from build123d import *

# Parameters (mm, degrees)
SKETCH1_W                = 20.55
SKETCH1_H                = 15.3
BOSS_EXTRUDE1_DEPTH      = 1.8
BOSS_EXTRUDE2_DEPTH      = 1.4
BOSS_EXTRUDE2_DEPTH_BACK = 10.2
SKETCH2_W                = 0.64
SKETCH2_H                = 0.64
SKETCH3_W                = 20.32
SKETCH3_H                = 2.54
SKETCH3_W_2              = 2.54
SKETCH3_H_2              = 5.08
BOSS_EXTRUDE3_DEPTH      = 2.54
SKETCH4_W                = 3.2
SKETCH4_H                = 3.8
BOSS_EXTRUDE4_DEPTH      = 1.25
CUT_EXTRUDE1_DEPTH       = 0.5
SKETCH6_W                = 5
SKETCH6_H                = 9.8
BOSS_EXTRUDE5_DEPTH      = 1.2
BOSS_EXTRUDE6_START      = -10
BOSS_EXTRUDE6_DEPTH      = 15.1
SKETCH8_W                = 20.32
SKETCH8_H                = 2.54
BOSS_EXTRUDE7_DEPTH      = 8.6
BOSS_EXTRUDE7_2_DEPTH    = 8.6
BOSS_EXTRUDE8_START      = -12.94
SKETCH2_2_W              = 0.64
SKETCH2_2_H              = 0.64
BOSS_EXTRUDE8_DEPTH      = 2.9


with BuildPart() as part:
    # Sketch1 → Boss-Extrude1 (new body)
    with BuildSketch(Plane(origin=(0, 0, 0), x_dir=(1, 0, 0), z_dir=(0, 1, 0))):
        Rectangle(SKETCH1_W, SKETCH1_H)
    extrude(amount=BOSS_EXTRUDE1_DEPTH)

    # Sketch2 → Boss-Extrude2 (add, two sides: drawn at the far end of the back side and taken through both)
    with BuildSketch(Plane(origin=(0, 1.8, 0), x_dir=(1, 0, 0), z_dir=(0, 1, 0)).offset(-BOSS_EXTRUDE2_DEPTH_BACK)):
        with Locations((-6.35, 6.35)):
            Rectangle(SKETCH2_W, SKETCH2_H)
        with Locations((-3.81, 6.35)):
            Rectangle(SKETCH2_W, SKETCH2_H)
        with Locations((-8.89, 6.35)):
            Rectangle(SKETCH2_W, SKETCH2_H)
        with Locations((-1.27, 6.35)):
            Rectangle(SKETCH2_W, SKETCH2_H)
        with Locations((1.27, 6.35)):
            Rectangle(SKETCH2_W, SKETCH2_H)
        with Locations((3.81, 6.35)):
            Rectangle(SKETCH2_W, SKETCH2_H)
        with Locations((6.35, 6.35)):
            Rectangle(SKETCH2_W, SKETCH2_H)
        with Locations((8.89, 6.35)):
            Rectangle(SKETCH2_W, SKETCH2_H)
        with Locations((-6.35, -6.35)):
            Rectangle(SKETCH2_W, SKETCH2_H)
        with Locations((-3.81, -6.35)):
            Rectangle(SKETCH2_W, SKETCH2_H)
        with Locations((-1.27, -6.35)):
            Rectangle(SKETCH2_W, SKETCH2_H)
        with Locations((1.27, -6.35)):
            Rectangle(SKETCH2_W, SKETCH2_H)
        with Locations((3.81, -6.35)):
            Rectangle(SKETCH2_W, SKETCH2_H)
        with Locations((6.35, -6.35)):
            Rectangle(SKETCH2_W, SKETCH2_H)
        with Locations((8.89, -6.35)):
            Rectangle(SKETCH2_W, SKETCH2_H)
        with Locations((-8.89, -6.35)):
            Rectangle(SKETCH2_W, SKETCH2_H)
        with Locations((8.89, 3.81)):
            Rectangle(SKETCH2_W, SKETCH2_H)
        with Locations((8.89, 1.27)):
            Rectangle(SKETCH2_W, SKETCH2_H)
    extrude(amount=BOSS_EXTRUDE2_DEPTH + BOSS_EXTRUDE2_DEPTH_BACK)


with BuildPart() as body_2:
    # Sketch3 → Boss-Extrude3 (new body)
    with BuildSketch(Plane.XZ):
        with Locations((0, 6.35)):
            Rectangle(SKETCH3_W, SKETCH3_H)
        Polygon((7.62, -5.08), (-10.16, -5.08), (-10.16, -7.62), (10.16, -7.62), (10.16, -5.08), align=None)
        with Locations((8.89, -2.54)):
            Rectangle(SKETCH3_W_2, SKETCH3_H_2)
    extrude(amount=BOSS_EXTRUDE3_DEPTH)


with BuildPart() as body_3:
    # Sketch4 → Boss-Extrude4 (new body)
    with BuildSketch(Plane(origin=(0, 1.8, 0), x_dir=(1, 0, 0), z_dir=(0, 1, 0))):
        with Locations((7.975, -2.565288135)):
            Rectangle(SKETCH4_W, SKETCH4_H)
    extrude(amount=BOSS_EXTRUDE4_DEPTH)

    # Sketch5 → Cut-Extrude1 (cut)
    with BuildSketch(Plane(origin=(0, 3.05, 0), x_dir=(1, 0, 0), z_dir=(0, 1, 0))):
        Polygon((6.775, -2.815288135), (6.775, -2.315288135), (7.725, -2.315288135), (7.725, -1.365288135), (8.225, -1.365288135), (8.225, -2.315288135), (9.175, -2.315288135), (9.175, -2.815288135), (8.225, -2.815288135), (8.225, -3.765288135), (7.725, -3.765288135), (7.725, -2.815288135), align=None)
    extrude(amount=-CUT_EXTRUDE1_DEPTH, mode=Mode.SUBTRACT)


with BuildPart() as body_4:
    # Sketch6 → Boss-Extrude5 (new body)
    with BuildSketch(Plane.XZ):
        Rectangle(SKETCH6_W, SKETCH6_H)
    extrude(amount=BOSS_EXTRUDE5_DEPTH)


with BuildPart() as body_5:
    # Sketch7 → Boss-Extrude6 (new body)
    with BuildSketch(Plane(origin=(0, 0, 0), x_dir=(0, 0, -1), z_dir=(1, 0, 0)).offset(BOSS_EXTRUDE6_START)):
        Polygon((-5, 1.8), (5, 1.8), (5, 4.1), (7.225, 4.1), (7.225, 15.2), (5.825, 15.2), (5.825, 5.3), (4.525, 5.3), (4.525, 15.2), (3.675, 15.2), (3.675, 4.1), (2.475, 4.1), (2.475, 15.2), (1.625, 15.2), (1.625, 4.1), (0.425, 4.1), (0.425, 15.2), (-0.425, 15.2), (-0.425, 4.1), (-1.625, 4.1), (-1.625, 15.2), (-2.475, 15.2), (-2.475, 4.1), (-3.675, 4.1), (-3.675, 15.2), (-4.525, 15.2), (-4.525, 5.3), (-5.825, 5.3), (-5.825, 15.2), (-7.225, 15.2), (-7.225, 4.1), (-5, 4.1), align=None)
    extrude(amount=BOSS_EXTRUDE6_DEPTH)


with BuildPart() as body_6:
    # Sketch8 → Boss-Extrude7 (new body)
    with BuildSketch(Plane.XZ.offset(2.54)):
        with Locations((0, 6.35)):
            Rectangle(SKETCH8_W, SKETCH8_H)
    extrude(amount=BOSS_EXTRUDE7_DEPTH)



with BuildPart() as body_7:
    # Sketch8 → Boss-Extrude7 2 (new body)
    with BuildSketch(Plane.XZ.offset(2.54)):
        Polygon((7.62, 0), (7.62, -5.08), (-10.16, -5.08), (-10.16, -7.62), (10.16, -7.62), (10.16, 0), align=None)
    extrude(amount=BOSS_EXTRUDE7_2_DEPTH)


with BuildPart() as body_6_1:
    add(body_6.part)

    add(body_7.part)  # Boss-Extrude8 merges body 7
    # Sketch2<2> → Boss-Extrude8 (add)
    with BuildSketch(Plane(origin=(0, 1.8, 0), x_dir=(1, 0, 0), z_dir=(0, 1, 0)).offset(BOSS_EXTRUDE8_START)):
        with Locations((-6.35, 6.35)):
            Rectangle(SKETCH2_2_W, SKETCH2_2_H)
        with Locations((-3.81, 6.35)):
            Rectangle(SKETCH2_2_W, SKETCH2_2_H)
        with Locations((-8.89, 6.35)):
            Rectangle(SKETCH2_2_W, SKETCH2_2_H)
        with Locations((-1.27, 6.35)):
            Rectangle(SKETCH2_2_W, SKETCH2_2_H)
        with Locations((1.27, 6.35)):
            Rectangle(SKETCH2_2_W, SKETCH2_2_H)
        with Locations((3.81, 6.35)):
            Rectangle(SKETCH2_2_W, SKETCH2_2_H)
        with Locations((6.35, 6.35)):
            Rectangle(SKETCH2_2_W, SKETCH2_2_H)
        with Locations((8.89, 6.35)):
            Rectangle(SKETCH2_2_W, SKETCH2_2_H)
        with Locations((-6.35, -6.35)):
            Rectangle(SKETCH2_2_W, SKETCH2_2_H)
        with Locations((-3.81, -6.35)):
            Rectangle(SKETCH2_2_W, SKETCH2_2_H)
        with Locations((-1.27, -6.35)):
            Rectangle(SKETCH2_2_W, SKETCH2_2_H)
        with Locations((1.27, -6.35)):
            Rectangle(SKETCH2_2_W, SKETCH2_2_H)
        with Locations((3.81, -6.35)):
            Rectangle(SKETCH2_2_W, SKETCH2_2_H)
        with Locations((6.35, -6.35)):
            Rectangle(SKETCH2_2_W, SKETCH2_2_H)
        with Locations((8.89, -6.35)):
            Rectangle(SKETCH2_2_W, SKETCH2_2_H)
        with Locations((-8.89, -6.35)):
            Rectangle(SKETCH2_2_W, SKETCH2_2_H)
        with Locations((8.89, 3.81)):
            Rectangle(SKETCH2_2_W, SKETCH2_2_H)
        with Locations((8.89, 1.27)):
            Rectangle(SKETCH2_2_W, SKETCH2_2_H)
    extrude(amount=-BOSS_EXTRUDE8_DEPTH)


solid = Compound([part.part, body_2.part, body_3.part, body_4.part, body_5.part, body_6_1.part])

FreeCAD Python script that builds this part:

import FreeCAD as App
import Part
import Sketcher

V = App.Vector
Q = App.Units.Quantity


def add_polygon(sketch, points):
    """Adds a closed chain of lines whose ends are joined by coincident constraints."""
    first, n = sketch.GeometryCount, len(points)
    for a, b in zip(points, points[1:] + points[:1]):
        sketch.addGeometry(Part.LineSegment(App.Vector(*a, 0), App.Vector(*b, 0)), False)
    for i in range(n):
        sketch.addConstraint(Sketcher.Constraint("Coincident", first + i, 2, first + (i + 1) % n, 1))

doc = App.newDocument("Part")
body = doc.addObject("PartDesign::Body", "Body")

sketch1 = body.newObject("Sketcher::SketchObject", "Sketch")
sketch1.AttachmentSupport = (doc.getObject("XZ_Plane"), [""])
sketch1.MapMode = "FlatFace"
add_polygon(sketch1, [(-10, -8), (-10, 8), (10, 8), (10, -8)])
sketch1.addConstraint(Sketcher.Constraint("Vertical", 0))
sketch1.addConstraint(Sketcher.Constraint("Horizontal", 1))
sketch1.addConstraint(Sketcher.Constraint("Vertical", 2))
sketch1.addConstraint(Sketcher.Constraint("Horizontal", 3))
sketch1.addConstraint(Sketcher.Constraint("Symmetric", 0, 2, 2, 2, -1, 1))
sketch1.addConstraint(Sketcher.Constraint("DistanceY", 0, 1, 0, 2, Q("15.3 mm")))
sketch1.addConstraint(Sketcher.Constraint("DistanceX", 1, 1, 1, 2, Q("20.55 mm")))
pad1 = body.newObject("PartDesign::Pad", "Pad")
pad1.Profile = sketch1
pad1.Length = 1.8
pad1.Reversed = True

sketch2 = body.newObject("Sketcher::SketchObject", "Sketch001")
sketch2.AttachmentSupport = (doc.getObject("XZ_Plane"), [""])
sketch2.MapMode = "FlatFace"
sketch2.AttachmentOffset = App.Placement(V(0, 0, -1.8), App.Rotation())
add_polygon(sketch2, [(-6.7, -6.7), (-6.7, -6), (-6, -6), (-6, -6.7)])
add_polygon(sketch2, [(-4.1, -6.7), (-4.1, -6), (-3.5, -6), (-3.5, -6.7)])
add_polygon(sketch2, [(-9.2, -6.7), (-9.2, -6), (-8.6, -6), (-8.6, -6.7)])
add_polygon(sketch2, [(-1.6, -6.7), (-1.6, -6), (-0.9, -6), (-0.9, -6.7)])
add_polygon(sketch2, [(0.9, -6.7), (0.9, -6), (1.6, -6), (1.6, -6.7)])
add_polygon(sketch2, [(3.5, -6.7), (3.5, -6), (4.1, -6), (4.1, -6.7)])
add_polygon(sketch2, [(6, -6.7), (6, -6), (6.7, -6), (6.7, -6.7)])
add_polygon(sketch2, [(8.6, -6.7), (8.6, -6), (9.2, -6), (9.2, -6.7)])
add_polygon(sketch2, [(-6.7, 6), (-6.7, 6.7), (-6, 6.7), (-6, 6)])
add_polygon(sketch2, [(-4.1, 6), (-4.1, 6.7), (-3.5, 6.7), (-3.5, 6)])
add_polygon(sketch2, [(-1.6, 6), (-1.6, 6.7), (-0.9, 6.7), (-0.9, 6)])
add_polygon(sketch2, [(0.9, 6), (0.9, 6.7), (1.6, 6.7), (1.6, 6)])
add_polygon(sketch2, [(3.5, 6), (3.5, 6.7), (4.1, 6.7), (4.1, 6)])
add_polygon(sketch2, [(6, 6), (6, 6.7), (6.7, 6.7), (6.7, 6)])
add_polygon(sketch2, [(8.6, 6), (8.6, 6.7), (9.2, 6.7), (9.2, 6)])
add_polygon(sketch2, [(-9.2, 6), (-9.2, 6.7), (-8.6, 6.7), (-8.6, 6)])
add_polygon(sketch2, [(8.6, -4.1), (8.6, -3.5), (9.2, -3.5), (9.2, -4.1)])
add_polygon(sketch2, [(8.6, -1.6), (8.6, -0.9), (9.2, -0.9), (9.2, -1.6)])
sketch2.addConstraint(Sketcher.Constraint("Vertical", 0))
sketch2.addConstraint(Sketcher.Constraint("Horizontal", 1))
sketch2.addConstraint(Sketcher.Constraint("Vertical", 2))
sketch2.addConstraint(Sketcher.Constraint("Horizontal", 3))
sketch2.addConstraint(Sketcher.Constraint("Vertical", 4))
sketch2.addConstraint(Sketcher.Constraint("Horizontal", 5))
sketch2.addConstraint(Sketcher.Constraint("Vertical", 6))
sketch2.addConstraint(Sketcher.Constraint("Horizontal", 7))
sketch2.addConstraint(Sketcher.Constraint("Vertical", 8))
sketch2.addConstraint(Sketcher.Constraint("Horizontal", 9))
sketch2.addConstraint(Sketcher.Constraint("Vertical", 10))
sketch2.addConstraint(Sketcher.Constraint("Horizontal", 11))
sketch2.addConstraint(Sketcher.Constraint("Vertical", 12))
sketch2.addConstraint(Sketcher.Constraint("Horizontal", 13))
sketch2.addConstraint(Sketcher.Constraint("Vertical", 14))
sketch2.addConstraint(Sketcher.Constraint("Horizontal", 15))
sketch2.addConstraint(Sketcher.Constraint("Vertical", 16))
sketch2.addConstraint(Sketcher.Constraint("Horizontal", 17))
sketch2.addConstraint(Sketcher.Constraint("Vertical", 18))
sketch2.addConstraint(Sketcher.Constraint("Horizontal", 19))
sketch2.addConstraint(Sketcher.Constraint("Vertical", 20))
sketch2.addConstraint(Sketcher.Constraint("Horizontal", 21))
sketch2.addConstraint(Sketcher.Constraint("Vertical", 22))
sketch2.addConstraint(Sketcher.Constraint("Horizontal", 23))
sketch2.addConstraint(Sketcher.Constraint("Vertical", 24))
sketch2.addConstraint(Sketcher.Constraint("Horizontal", 25))
sketch2.addConstraint(Sketcher.Constraint("Vertical", 26))
sketch2.addConstraint(Sketcher.Constraint("Horizontal", 27))
sketch2.addConstraint(Sketcher.Constraint("Vertical", 28))
sketch2.addConstraint(Sketcher.Constraint("Horizontal", 29))
sketch2.addConstraint(Sketcher.Constraint("Vertical", 30))
sketch2.addConstraint(Sketcher.Constraint("Horizontal", 31))
sketch2.addConstraint(Sketcher.Constraint("Vertical", 32))
sketch2.addConstraint(Sketcher.Constraint("Horizontal", 33))
sketch2.addConstraint(Sketcher.Constraint("Vertical", 34))
sketch2.addConstraint(Sketcher.Constraint("Horizontal", 35))
sketch2.addConstraint(Sketcher.Constraint("Vertical", 36))
sketch2.addConstraint(Sketcher.Constraint("Horizontal", 37))
sketch2.addConstraint(Sketcher.Constraint("Vertical", 38))
sketch2.addConstraint(Sketcher.Constraint("Horizontal", 39))
sketch2.addConstraint(Sketcher.Constraint("Vertical", 40))
sketch2.addConstraint(Sketcher.Constraint("Horizontal", 41))
sketch2.addConstraint(Sketcher.Constraint("Vertical", 42))
sketch2.addConstraint(Sketcher.Constraint("Horizontal", 43))
sketch2.addConstraint(Sketcher.Constraint("Vertical", 44))
sketch2.addConstraint(Sketcher.Constraint("Horizontal", 45))
sketch2.addConstraint(Sketcher.Constraint("Vertical", 46))
sketch2.addConstraint(Sketcher.Constraint("Horizontal", 47))
sketch2.addConstraint(Sketcher.Constraint("Vertical", 48))
sketch2.addConstraint(Sketcher.Constraint("Horizontal", 49))
sketch2.addConstraint(Sketcher.Constraint("Vertical", 50))
sketch2.addConstraint(Sketcher.Constraint("Horizontal", 51))
sketch2.addConstraint(Sketcher.Constraint("Vertical", 52))
sketch2.addConstraint(Sketcher.Constraint("Horizontal", 53))
sketch2.addConstraint(Sketcher.Constraint("Vertical", 54))
sketch2.addConstraint(Sketcher.Constraint("Horizontal", 55))
sketch2.addConstraint(Sketcher.Constraint("Vertical", 56))
sketch2.addConstraint(Sketcher.Constraint("Horizontal", 57))
sketch2.addConstraint(Sketcher.Constraint("Vertical", 58))
sketch2.addConstraint(Sketcher.Constraint("Horizontal", 59))
sketch2.addConstraint(Sketcher.Constraint("Vertical", 60))
sketch2.addConstraint(Sketcher.Constraint("Horizontal", 61))
sketch2.addConstraint(Sketcher.Constraint("Vertical", 62))
sketch2.addConstraint(Sketcher.Constraint("Horizontal", 63))
sketch2.addConstraint(Sketcher.Constraint("Vertical", 64))
sketch2.addConstraint(Sketcher.Constraint("Horizontal", 65))
sketch2.addConstraint(Sketcher.Constraint("Vertical", 66))
sketch2.addConstraint(Sketcher.Constraint("Horizontal", 67))
sketch2.addConstraint(Sketcher.Constraint("Vertical", 68))
sketch2.addConstraint(Sketcher.Constraint("Horizontal", 69))
sketch2.addConstraint(Sketcher.Constraint("Vertical", 70))
sketch2.addConstraint(Sketcher.Constraint("Horizontal", 71))
sketch2.addConstraint(Sketcher.Constraint("Symmetric", 26, 2, 32, 2, -1, 1))
sketch2.addConstraint(Sketcher.Constraint("Symmetric", 24, 2, 34, 2, -1, 1))
sketch2.addConstraint(Sketcher.Constraint("Symmetric", 22, 2, 36, 2, -1, 1))
sketch2.addConstraint(Sketcher.Constraint("Symmetric", 20, 2, 38, 2, -1, 1))
sketch2.addConstraint(Sketcher.Constraint("Symmetric", 18, 2, 40, 2, -1, 1))
sketch2.addConstraint(Sketcher.Constraint("Symmetric", 16, 2, 42, 2, -1, 1))
sketch2.addConstraint(Sketcher.Constraint("Symmetric", 14, 2, 44, 2, -1, 1))
sketch2.addConstraint(Sketcher.Constraint("Symmetric", 12, 2, 46, 2, -1, 1))
sketch2.addConstraint(Sketcher.Constraint("Symmetric", 6, 2, 48, 2, -1, 1))
sketch2.addConstraint(Sketcher.Constraint("Symmetric", 4, 2, 50, 2, -1, 1))
sketch2.addConstraint(Sketcher.Constraint("Symmetric", 2, 2, 52, 2, -1, 1))
sketch2.addConstraint(Sketcher.Constraint("Symmetric", 0, 2, 54, 2, -1, 1))
sketch2.addConstraint(Sketcher.Constraint("Symmetric", 10, 2, 56, 2, -1, 1))
sketch2.addConstraint(Sketcher.Constraint("Symmetric", 8, 2, 58, 2, -1, 1))
sketch2.addConstraint(Sketcher.Constraint("Symmetric", 30, 2, 60, 2, -1, 1))
sketch2.addConstraint(Sketcher.Constraint("Symmetric", 28, 2, 62, 2, -1, 1))
sketch2.addConstraint(Sketcher.Constraint("Symmetric", 13, 2, 16, 2, -2))
sketch2.addConstraint(Sketcher.Constraint("Symmetric", 15, 2, 18, 2, -2))
sketch2.addConstraint(Sketcher.Constraint("Symmetric", 5, 2, 20, 2, -2))
sketch2.addConstraint(Sketcher.Constraint("Symmetric", 7, 2, 22, 2, -2))
sketch2.addConstraint(Sketcher.Constraint("Symmetric", 1, 2, 24, 2, -2))
sketch2.addConstraint(Sketcher.Constraint("Symmetric", 3, 2, 26, 2, -2))
sketch2.addConstraint(Sketcher.Constraint("Symmetric", 9, 2, 28, 2, -2))
sketch2.addConstraint(Sketcher.Constraint("Symmetric", 11, 2, 30, 2, -2))
sketch2.addConstraint(Sketcher.Constraint("Horizontal", 1, 2, 4, 2))
sketch2.addConstraint(Sketcher.Constraint("Horizontal", 3, 2, 6, 2))
sketch2.addConstraint(Sketcher.Constraint("Horizontal", 5, 2, 8, 2))
sketch2.addConstraint(Sketcher.Constraint("Horizontal", 7, 2, 10, 2))
sketch2.addConstraint(Sketcher.Constraint("Horizontal", 9, 2, 12, 2))
sketch2.addConstraint(Sketcher.Constraint("Horizontal", 11, 2, 14, 2))
sketch2.addConstraint(Sketcher.Constraint("Vertical", 59, 2, 64, 2))
sketch2.addConstraint(Sketcher.Constraint("Vertical", 58, 2, 65, 2))
sketch2.addConstraint(Sketcher.Constraint("Vertical", 67, 2, 68, 2))
sketch2.addConstraint(Sketcher.Constraint("Vertical", 66, 2, 69, 2))
sketch2.addConstraint(Sketcher.Constraint("Equal", 3, 5))
sketch2.addConstraint(Sketcher.Constraint("Equal", 7, 9))
sketch2.addConstraint(Sketcher.Constraint("Equal", 11, 13))
sketch2.addConstraint(Sketcher.Constraint("Equal", 71, 0))
sketch2.addConstraint(Sketcher.Constraint("Equal", 62, 64))
sketch2.addConstraint(Sketcher.Constraint("Equal", 66, 68))
sketch2.addConstraint(Sketcher.Constraint("DistanceX", 1, 1, 1, 2, Q("0.64 mm")))
sketch2.addConstraint(Sketcher.Constraint("DistanceX", 0, 2, -1, 1, Q("6.67 mm")))
sketch2.addConstraint(Sketcher.Constraint("DistanceY", 0, 2, -1, 1, Q("6.03 mm")))
sketch2.addConstraint(Sketcher.Constraint("DistanceX", 4, 2, -1, 1, Q("4.13 mm")))
sketch2.addConstraint(Sketcher.Constraint("DistanceX", 8, 2, -1, 1, Q("9.21 mm")))
sketch2.addConstraint(Sketcher.Constraint("DistanceX", 12, 2, -1, 1, Q("1.59 mm")))
sketch2.addConstraint(Sketcher.Constraint("DistanceY", 64, 2, -1, 1, Q("3.49 mm")))
sketch2.addConstraint(Sketcher.Constraint("DistanceY", 68, 2, -1, 1, Q("0.95 mm")))
pad2 = body.newObject("PartDesign::Pad", "Pad001")
pad2.Profile = sketch2
pad2.Type = "TwoLengths"
pad2.Length = 1.4
pad2.Length2 = 10.2
pad2.Reversed = True
body2 = doc.addObject("PartDesign::Body", "Body001")
body2.AllowCompound = True

sketch3 = body2.newObject("Sketcher::SketchObject", "Sketch002")
sketch3.AttachmentSupport = (doc.getObject("XZ_Plane001"), [""])
sketch3.MapMode = "FlatFace"
add_polygon(sketch3, [(-10.2, 7.6), (-10.2, 5.1), (10.2, 5.1), (10.2, 7.6)])
add_polygon(sketch3, [(-10.2, -5.1), (-10.2, -7.6), (10.2, -7.6), (10.2, 0), (7.6, 0), (7.6, -5.1)])
sketch3.addConstraint(Sketcher.Constraint("Vertical", 0))
sketch3.addConstraint(Sketcher.Constraint("Horizontal", 1))
sketch3.addConstraint(Sketcher.Constraint("Vertical", 2))
sketch3.addConstraint(Sketcher.Constraint("Horizontal", 3))
sketch3.addConstraint(Sketcher.Constraint("Vertical", 4))
sketch3.addConstraint(Sketcher.Constraint("Horizontal", 5))
sketch3.addConstraint(Sketcher.Constraint("Vertical", 6))
sketch3.addConstraint(Sketcher.Constraint("Horizontal", 7))
sketch3.addConstraint(Sketcher.Constraint("Vertical", 8))
sketch3.addConstraint(Sketcher.Constraint("Horizontal", 9))
sketch3.addConstraint(Sketcher.Constraint("Symmetric", 2, 2, 4, 2, -1, 1))
sketch3.addConstraint(Sketcher.Constraint("Symmetric", 0, 2, 9, 2, -1))
sketch3.addConstraint(Sketcher.Constraint("PointOnObject", 6, 2, -1))
sketch3.addConstraint(Sketcher.Constraint("Vertical", 2, 2, 5, 2))
sketch3.addConstraint(Sketcher.Constraint("Equal", 7, 0))
sketch3.addConstraint(Sketcher.Constraint("DistanceX", 1, 1, 1, 2, Q("20.32 mm")))
sketch3.addConstraint(Sketcher.Constraint("DistanceX", 7, 2, 7, 1, Q("2.54 mm")))
sketch3.addConstraint(Sketcher.Constraint("DistanceY", 6, 1, 6, 2, Q("7.62 mm")))
pad3 = body2.newObject("PartDesign::Pad", "Pad002")
pad3.Profile = sketch3
pad3.Length = 2.54
body3 = doc.addObject("PartDesign::Body", "Body002")

sketch4 = body3.newObject("Sketcher::SketchObject", "Sketch003")
sketch4.AttachmentSupport = (doc.getObject("XZ_Plane002"), [""])
sketch4.MapMode = "FlatFace"
sketch4.AttachmentOffset = App.Placement(V(0, 0, -1.8), App.Rotation())
add_polygon(sketch4, [(6.4, 0.7), (6.4, 4.5), (9.6, 4.5), (9.6, 0.7)])
sketch4.addConstraint(Sketcher.Constraint("Vertical", 0))
sketch4.addConstraint(Sketcher.Constraint("Horizontal", 1))
sketch4.addConstraint(Sketcher.Constraint("Vertical", 2))
sketch4.addConstraint(Sketcher.Constraint("Horizontal", 3))
sketch4.addConstraint(Sketcher.Constraint("DistanceX", 1, 1, 1, 2, Q("3.2 mm")))
sketch4.addConstraint(Sketcher.Constraint("DistanceY", 0, 1, 0, 2, Q("3.8 mm")))
sketch4.addConstraint(Sketcher.Constraint("DistanceX", -1, 1, 0, 2, Q("6.375 mm")))
sketch4.addConstraint(Sketcher.Constraint("DistanceY", -1, 1, 0, 2, Q("4.465288 mm")))
pad4 = body3.newObject("PartDesign::Pad", "Pad003")
pad4.Profile = sketch4
pad4.Length = 1.25
pad4.Reversed = True

sketch5 = body3.newObject("Sketcher::SketchObject", "Sketch004")
sketch5.AttachmentSupport = (doc.getObject("XZ_Plane002"), [""])
sketch5.MapMode = "FlatFace"
sketch5.AttachmentOffset = App.Placement(V(0, 0, -3.05), App.Rotation())
add_polygon(sketch5, [(6.8, 2.3), (6.8, 2.8), (7.7, 2.8), (7.7, 3.8), (8.2, 3.8), (8.2, 2.8), (9.2, 2.8), (9.2, 2.3), (8.2, 2.3), (8.2, 1.4), (7.7, 1.4), (7.7, 2.3)])
sketch5.addConstraint(Sketcher.Constraint("Vertical", 0))
sketch5.addConstraint(Sketcher.Constraint("Horizontal", 1))
sketch5.addConstraint(Sketcher.Constraint("Vertical", 2))
sketch5.addConstraint(Sketcher.Constraint("Horizontal", 3))
sketch5.addConstraint(Sketcher.Constraint("Vertical", 4))
sketch5.addConstraint(Sketcher.Constraint("Horizontal", 5))
sketch5.addConstraint(Sketcher.Constraint("Vertical", 6))
sketch5.addConstraint(Sketcher.Constraint("Horizontal", 7))
sketch5.addConstraint(Sketcher.Constraint("Vertical", 8))
sketch5.addConstraint(Sketcher.Constraint("Horizontal", 9))
sketch5.addConstraint(Sketcher.Constraint("Vertical", 10))
sketch5.addConstraint(Sketcher.Constraint("Horizontal", 11))
sketch5.addConstraint(Sketcher.Constraint("Horizontal", 1, 2, 4, 2))
sketch5.addConstraint(Sketcher.Constraint("Horizontal", 7, 2, 10, 2))
sketch5.addConstraint(Sketcher.Constraint("Vertical", 4, 2, 7, 2))
sketch5.addConstraint(Sketcher.Constraint("Vertical", 2, 2, 9, 2))
sketch5.addConstraint(Sketcher.Constraint("Equal", 1, 5))
sketch5.addConstraint(Sketcher.Constraint("Equal", 9, 0))
sketch5.addConstraint(Sketcher.Constraint("Equal", 11, 2))
sketch5.addConstraint(Sketcher.Constraint("Equal", 4, 8))
sketch5.addConstraint(Sketcher.Constraint("DistanceX", 3, 1, 3, 2, Q("0.5 mm")))
sketch5.addConstraint(Sketcher.Constraint("DistanceX", 1, 1, 1, 2, Q("0.95 mm")))
sketch5.addConstraint(Sketcher.Constraint("DistanceX", -1, 1, 0, 2, Q("6.775 mm")))
sketch5.addConstraint(Sketcher.Constraint("DistanceY", -1, 1, 0, 2, Q("2.815288 mm")))
pocket1 = body3.newObject("PartDesign::Pocket", "Pocket")
pocket1.Profile = sketch5
pocket1.Length = 0.5
pocket1.Reversed = True
body4 = doc.addObject("PartDesign::Body", "Body003")

sketch6 = body4.newObject("Sketcher::SketchObject", "Sketch005")
sketch6.AttachmentSupport = (doc.getObject("XZ_Plane003"), [""])
sketch6.MapMode = "FlatFace"
add_polygon(sketch6, [(-2, 5), (-2, -5), (2, -5), (2, 5)])
sketch6.addConstraint(Sketcher.Constraint("Vertical", 0))
sketch6.addConstraint(Sketcher.Constraint("Horizontal", 1))
sketch6.addConstraint(Sketcher.Constraint("Vertical", 2))
sketch6.addConstraint(Sketcher.Constraint("Horizontal", 3))
sketch6.addConstraint(Sketcher.Constraint("Symmetric", 0, 2, 2, 2, -1, 1))
sketch6.addConstraint(Sketcher.Constraint("DistanceX", 1, 1, 1, 2, Q("5 mm")))
sketch6.addConstraint(Sketcher.Constraint("DistanceY", 0, 2, 0, 1, Q("9.8 mm")))
pad5 = body4.newObject("PartDesign::Pad", "Pad004")
pad5.Profile = sketch6
pad5.Length = 1.2
body5 = doc.addObject("PartDesign::Body", "Body004")

sketch7 = body5.newObject("Sketcher::SketchObject", "Sketch006")
sketch7.AttachmentSupport = (doc.getObject("YZ_Plane004"), [""])
sketch7.MapMode = "FlatFace"
sketch7.AttachmentOffset = App.Placement(V(0, 0, -10), App.Rotation())
add_polygon(sketch7, [(1.8, 5), (1.8, -5), (4.1, -5), (4.1, -7.2), (15.2, -7.2), (15.2, -5.8), (5.3, -5.8), (5.3, -4.5), (15.2, -4.5), (15.2, -3.7), (4.1, -3.7), (4.1, -2.5), (15.2, -2.5), (15.2, -1.6), (4.1, -1.6), (4.1, -0.4), (15.2, -0.4), (15.2, 0.4), (4.1, 0.4), (4.1, 1.6), (15.2, 1.6), (15.2, 2.5), (4.1, 2.5), (4.1, 3.7), (15.2, 3.7), (15.2, 4.5), (5.3, 4.5), (5.3, 5.8), (15.2, 5.8), (15.2, 7.2), (4.1, 7.2), (4.1, 5)])
sketch7.addConstraint(Sketcher.Constraint("Vertical", 0))
sketch7.addConstraint(Sketcher.Constraint("Horizontal", 1))
sketch7.addConstraint(Sketcher.Constraint("Vertical", 2))
sketch7.addConstraint(Sketcher.Constraint("Horizontal", 3))
sketch7.addConstraint(Sketcher.Constraint("Vertical", 4))
sketch7.addConstraint(Sketcher.Constraint("Horizontal", 5))
sketch7.addConstraint(Sketcher.Constraint("Vertical", 6))
sketch7.addConstraint(Sketcher.Constraint("Horizontal", 7))
sketch7.addConstraint(Sketcher.Constraint("Vertical", 8))
sketch7.addConstraint(Sketcher.Constraint("Horizontal", 9))
sketch7.addConstraint(Sketcher.Constraint("Vertical", 10))
sketch7.addConstraint(Sketcher.Constraint("Horizontal", 11))
sketch7.addConstraint(Sketcher.Constraint("Vertical", 12))
sketch7.addConstraint(Sketcher.Constraint("Horizontal", 13))
sketch7.addConstraint(Sketcher.Constraint("Vertical", 14))
sketch7.addConstraint(Sketcher.Constraint("Horizontal", 15))
sketch7.addConstraint(Sketcher.Constraint("Vertical", 16))
sketch7.addConstraint(Sketcher.Constraint("Horizontal", 17))
sketch7.addConstraint(Sketcher.Constraint("Vertical", 18))
sketch7.addConstraint(Sketcher.Constraint("Horizontal", 19))
sketch7.addConstraint(Sketcher.Constraint("Vertical", 20))
sketch7.addConstraint(Sketcher.Constraint("Horizontal", 21))
sketch7.addConstraint(Sketcher.Constraint("Vertical", 22))
sketch7.addConstraint(Sketcher.Constraint("Horizontal", 23))
sketch7.addConstraint(Sketcher.Constraint("Vertical", 24))
sketch7.addConstraint(Sketcher.Constraint("Horizontal", 25))
sketch7.addConstraint(Sketcher.Constraint("Vertical", 26))
sketch7.addConstraint(Sketcher.Constraint("Horizontal", 27))
sketch7.addConstraint(Sketcher.Constraint("Vertical", 28))
sketch7.addConstraint(Sketcher.Constraint("Horizontal", 29))
sketch7.addConstraint(Sketcher.Constraint("Vertical", 30))
sketch7.addConstraint(Sketcher.Constraint("Horizontal", 31))
sketch7.addConstraint(Sketcher.Constraint("Symmetric", 14, 2, 17, 2, -1))
sketch7.addConstraint(Sketcher.Constraint("Symmetric", 12, 2, 19, 2, -1))
sketch7.addConstraint(Sketcher.Constraint("Symmetric", 10, 2, 21, 2, -1))
sketch7.addConstraint(Sketcher.Constraint("Symmetric", 8, 2, 23, 2, -1))
sketch7.addConstraint(Sketcher.Constraint("Symmetric", 6, 2, 25, 2, -1))
sketch7.addConstraint(Sketcher.Constraint("Symmetric", 4, 2, 27, 2, -1))
sketch7.addConstraint(Sketcher.Constraint("Symmetric", 2, 2, 29, 2, -1))
sketch7.addConstraint(Sketcher.Constraint("Vertical", 4, 2, 7, 2))
sketch7.addConstraint(Sketcher.Constraint("Vertical", 2, 2, 9, 2))
sketch7.addConstraint(Sketcher.Constraint("Vertical", 8, 2, 11, 2))
sketch7.addConstraint(Sketcher.Constraint("Vertical", 10, 2, 13, 2))
sketch7.addConstraint(Sketcher.Constraint("Vertical", 12, 2, 15, 2))
sketch7.addConstraint(Sketcher.Constraint("Equal", 8, 12))
sketch7.addConstraint(Sketcher.Constraint("Equal", 10, 14))
sketch7.addConstraint(Sketcher.Constraint("Equal", 12, 16))
sketch7.addConstraint(Sketcher.Constraint("Equal", 2, 30))
sketch7.addConstraint(Sketcher.Constraint("DistanceY", 0, 2, 0, 1, Q("10 mm")))
sketch7.addConstraint(Sketcher.Constraint("DistanceX", 1, 1, 1, 2, Q("2.3 mm")))
sketch7.addConstraint(Sketcher.Constraint("DistanceX", 3, 1, 3, 2, Q("11.1 mm")))
sketch7.addConstraint(Sketcher.Constraint("DistanceX", 5, 2, 5, 1, Q("9.9 mm")))
sketch7.addConstraint(Sketcher.Constraint("DistanceY", 4, 1, 4, 2, Q("1.4 mm")))
sketch7.addConstraint(Sketcher.Constraint("DistanceY", 6, 1, 6, 2, Q("1.3 mm")))
sketch7.addConstraint(Sketcher.Constraint("DistanceY", 10, 1, 10, 2, Q("1.2 mm")))
sketch7.addConstraint(Sketcher.Constraint("DistanceY", 8, 1, 8, 2, Q("0.85 mm")))
sketch7.addConstraint(Sketcher.Constraint("DistanceX", -1, 1, 0, 2, Q("1.8 mm")))
pad6 = body5.newObject("PartDesign::Pad", "Pad005")
pad6.Profile = sketch7
pad6.Length = 15.1
body6 = doc.addObject("PartDesign::Body", "Body005")

sketch8 = body6.newObject("Sketcher::SketchObject", "Sketch007")
sketch8.AttachmentSupport = (doc.getObject("XZ_Plane005"), [""])
sketch8.MapMode = "FlatFace"
sketch8.AttachmentOffset = App.Placement(V(0, 0, 2.54), App.Rotation())
add_polygon(sketch8, [(-10.2, 7.6), (-10.2, 5.1), (10.2, 5.1), (10.2, 7.6)])
sketch8.addConstraint(Sketcher.Constraint("Vertical", 0))
sketch8.addConstraint(Sketcher.Constraint("Horizontal", 1))
sketch8.addConstraint(Sketcher.Constraint("Vertical", 2))
sketch8.addConstraint(Sketcher.Constraint("Horizontal", 3))
sketch8.addConstraint(Sketcher.Constraint("DistanceX", 1, 1, 1, 2, Q("20.32 mm")))
sketch8.addConstraint(Sketcher.Constraint("DistanceY", 0, 2, 0, 1, Q("2.54 mm")))
sketch8.addConstraint(Sketcher.Constraint("DistanceX", 0, 2, -1, 1, Q("10.16 mm")))
sketch8.addConstraint(Sketcher.Constraint("DistanceY", -1, 1, 0, 2, Q("5.08 mm")))
pad7 = body6.newObject("PartDesign::Pad", "Pad006")
pad7.Profile = sketch8
pad7.Length = 8.6
body7 = doc.addObject("PartDesign::Body", "Body006")

sketch9 = body7.newObject("Sketcher::SketchObject", "Sketch008")
sketch9.AttachmentSupport = (doc.getObject("XZ_Plane006"), [""])
sketch9.MapMode = "FlatFace"
sketch9.AttachmentOffset = App.Placement(V(0, 0, 2.54), App.Rotation())
add_polygon(sketch9, [(7.6, 0), (7.6, -5.1), (-10.2, -5.1), (-10.2, -7.6), (10.2, -7.6), (10.2, 0)])
sketch9.addConstraint(Sketcher.Constraint("Vertical", 0))
sketch9.addConstraint(Sketcher.Constraint("Horizontal", 1))
sketch9.addConstraint(Sketcher.Constraint("Vertical", 2))
sketch9.addConstraint(Sketcher.Constraint("Horizontal", 3))
sketch9.addConstraint(Sketcher.Constraint("Vertical", 4))
sketch9.addConstraint(Sketcher.Constraint("Horizontal", 5))
sketch9.addConstraint(Sketcher.Constraint("PointOnObject", 4, 2, -1))
sketch9.addConstraint(Sketcher.Constraint("Equal", 5, 2))
sketch9.addConstraint(Sketcher.Constraint("DistanceX", 1, 2, 1, 1, Q("17.78 mm")))
sketch9.addConstraint(Sketcher.Constraint("DistanceX", 3, 1, 3, 2, Q("20.32 mm")))
sketch9.addConstraint(Sketcher.Constraint("DistanceY", 0, 2, 0, 1, Q("5.08 mm")))
sketch9.addConstraint(Sketcher.Constraint("DistanceX", -1, 1, 0, 2, Q("7.62 mm")))
pad8 = body7.newObject("PartDesign::Pad", "Pad007")
pad8.Profile = sketch9
pad8.Length = 8.6
body6.AllowCompound = True
doc.recompute()

boolean = body6.newObject("PartDesign::Boolean", "Boolean")
boolean.Type = "Fuse"
boolean.addObjects([body7])

sketch10 = body6.newObject("Sketcher::SketchObject", "Sketch009")
sketch10.AttachmentSupport = (doc.getObject("XZ_Plane005"), [""])
sketch10.MapMode = "FlatFace"
sketch10.AttachmentOffset = App.Placement(V(0, 0, 11.14), App.Rotation())
add_polygon(sketch10, [(-6.7, -6.7), (-6.7, -6), (-6, -6), (-6, -6.7)])
add_polygon(sketch10, [(-4.1, -6.7), (-4.1, -6), (-3.5, -6), (-3.5, -6.7)])
add_polygon(sketch10, [(-9.2, -6.7), (-9.2, -6), (-8.6, -6), (-8.6, -6.7)])
add_polygon(sketch10, [(-1.6, -6.7), (-1.6, -6), (-0.9, -6), (-0.9, -6.7)])
add_polygon(sketch10, [(0.9, -6.7), (0.9, -6), (1.6, -6), (1.6, -6.7)])
add_polygon(sketch10, [(3.5, -6.7), (3.5, -6), (4.1, -6), (4.1, -6.7)])
add_polygon(sketch10, [(6, -6.7), (6, -6), (6.7, -6), (6.7, -6.7)])
add_polygon(sketch10, [(8.6, -6.7), (8.6, -6), (9.2, -6), (9.2, -6.7)])
add_polygon(sketch10, [(-6.7, 6), (-6.7, 6.7), (-6, 6.7), (-6, 6)])
add_polygon(sketch10, [(-4.1, 6), (-4.1, 6.7), (-3.5, 6.7), (-3.5, 6)])
add_polygon(sketch10, [(-1.6, 6), (-1.6, 6.7), (-0.9, 6.7), (-0.9, 6)])
add_polygon(sketch10, [(0.9, 6), (0.9, 6.7), (1.6, 6.7), (1.6, 6)])
add_polygon(sketch10, [(3.5, 6), (3.5, 6.7), (4.1, 6.7), (4.1, 6)])
add_polygon(sketch10, [(6, 6), (6, 6.7), (6.7, 6.7), (6.7, 6)])
add_polygon(sketch10, [(8.6, 6), (8.6, 6.7), (9.2, 6.7), (9.2, 6)])
add_polygon(sketch10, [(-9.2, 6), (-9.2, 6.7), (-8.6, 6.7), (-8.6, 6)])
add_polygon(sketch10, [(8.6, -4.1), (8.6, -3.5), (9.2, -3.5), (9.2, -4.1)])
add_polygon(sketch10, [(8.6, -1.6), (8.6, -0.9), (9.2, -0.9), (9.2, -1.6)])
sketch10.addConstraint(Sketcher.Constraint("Vertical", 0))
sketch10.addConstraint(Sketcher.Constraint("Horizontal", 1))
sketch10.addConstraint(Sketcher.Constraint("Vertical", 2))
sketch10.addConstraint(Sketcher.Constraint("Horizontal", 3))
sketch10.addConstraint(Sketcher.Constraint("Vertical", 4))
sketch10.addConstraint(Sketcher.Constraint("Horizontal", 5))
sketch10.addConstraint(Sketcher.Constraint("Vertical", 6))
sketch10.addConstraint(Sketcher.Constraint("Horizontal", 7))
sketch10.addConstraint(Sketcher.Constraint("Vertical", 8))
sketch10.addConstraint(Sketcher.Constraint("Horizontal", 9))
sketch10.addConstraint(Sketcher.Constraint("Vertical", 10))
sketch10.addConstraint(Sketcher.Constraint("Horizontal", 11))
sketch10.addConstraint(Sketcher.Constraint("Vertical", 12))
sketch10.addConstraint(Sketcher.Constraint("Horizontal", 13))
sketch10.addConstraint(Sketcher.Constraint("Vertical", 14))
sketch10.addConstraint(Sketcher.Constraint("Horizontal", 15))
sketch10.addConstraint(Sketcher.Constraint("Vertical", 16))
sketch10.addConstraint(Sketcher.Constraint("Horizontal", 17))
sketch10.addConstraint(Sketcher.Constraint("Vertical", 18))
sketch10.addConstraint(Sketcher.Constraint("Horizontal", 19))
sketch10.addConstraint(Sketcher.Constraint("Vertical", 20))
sketch10.addConstraint(Sketcher.Constraint("Horizontal", 21))
sketch10.addConstraint(Sketcher.Constraint("Vertical", 22))
sketch10.addConstraint(Sketcher.Constraint("Horizontal", 23))
sketch10.addConstraint(Sketcher.Constraint("Vertical", 24))
sketch10.addConstraint(Sketcher.Constraint("Horizontal", 25))
sketch10.addConstraint(Sketcher.Constraint("Vertical", 26))
sketch10.addConstraint(Sketcher.Constraint("Horizontal", 27))
sketch10.addConstraint(Sketcher.Constraint("Vertical", 28))
sketch10.addConstraint(Sketcher.Constraint("Horizontal", 29))
sketch10.addConstraint(Sketcher.Constraint("Vertical", 30))
sketch10.addConstraint(Sketcher.Constraint("Horizontal", 31))
sketch10.addConstraint(Sketcher.Constraint("Vertical", 32))
sketch10.addConstraint(Sketcher.Constraint("Horizontal", 33))
sketch10.addConstraint(Sketcher.Constraint("Vertical", 34))
sketch10.addConstraint(Sketcher.Constraint("Horizontal", 35))
sketch10.addConstraint(Sketcher.Constraint("Vertical", 36))
sketch10.addConstraint(Sketcher.Constraint("Horizontal", 37))
sketch10.addConstraint(Sketcher.Constraint("Vertical", 38))
sketch10.addConstraint(Sketcher.Constraint("Horizontal", 39))
sketch10.addConstraint(Sketcher.Constraint("Vertical", 40))
sketch10.addConstraint(Sketcher.Constraint("Horizontal", 41))
sketch10.addConstraint(Sketcher.Constraint("Vertical", 42))
sketch10.addConstraint(Sketcher.Constraint("Horizontal", 43))
sketch10.addConstraint(Sketcher.Constraint("Vertical", 44))
sketch10.addConstraint(Sketcher.Constraint("Horizontal", 45))
sketch10.addConstraint(Sketcher.Constraint("Vertical", 46))
sketch10.addConstraint(Sketcher.Constraint("Horizontal", 47))
sketch10.addConstraint(Sketcher.Constraint("Vertical", 48))
sketch10.addConstraint(Sketcher.Constraint("Horizontal", 49))
sketch10.addConstraint(Sketcher.Constraint("Vertical", 50))
sketch10.addConstraint(Sketcher.Constraint("Horizontal", 51))
sketch10.addConstraint(Sketcher.Constraint("Vertical", 52))
sketch10.addConstraint(Sketcher.Constraint("Horizontal", 53))
sketch10.addConstraint(Sketcher.Constraint("Vertical", 54))
sketch10.addConstraint(Sketcher.Constraint("Horizontal", 55))
sketch10.addConstraint(Sketcher.Constraint("Vertical", 56))
sketch10.addConstraint(Sketcher.Constraint("Horizontal", 57))
sketch10.addConstraint(Sketcher.Constraint("Vertical", 58))
sketch10.addConstraint(Sketcher.Constraint("Horizontal", 59))
sketch10.addConstraint(Sketcher.Constraint("Vertical", 60))
sketch10.addConstraint(Sketcher.Constraint("Horizontal", 61))
sketch10.addConstraint(Sketcher.Constraint("Vertical", 62))
sketch10.addConstraint(Sketcher.Constraint("Horizontal", 63))
sketch10.addConstraint(Sketcher.Constraint("Vertical", 64))
sketch10.addConstraint(Sketcher.Constraint("Horizontal", 65))
sketch10.addConstraint(Sketcher.Constraint("Vertical", 66))
sketch10.addConstraint(Sketcher.Constraint("Horizontal", 67))
sketch10.addConstraint(Sketcher.Constraint("Vertical", 68))
sketch10.addConstraint(Sketcher.Constraint("Horizontal", 69))
sketch10.addConstraint(Sketcher.Constraint("Vertical", 70))
sketch10.addConstraint(Sketcher.Constraint("Horizontal", 71))
sketch10.addConstraint(Sketcher.Constraint("Symmetric", 26, 2, 32, 2, -1, 1))
sketch10.addConstraint(Sketcher.Constraint("Symmetric", 24, 2, 34, 2, -1, 1))
sketch10.addConstraint(Sketcher.Constraint("Symmetric", 22, 2, 36, 2, -1, 1))
sketch10.addConstraint(Sketcher.Constraint("Symmetric", 20, 2, 38, 2, -1, 1))
sketch10.addConstraint(Sketcher.Constraint("Symmetric", 18, 2, 40, 2, -1, 1))
sketch10.addConstraint(Sketcher.Constraint("Symmetric", 16, 2, 42, 2, -1, 1))
sketch10.addConstraint(Sketcher.Constraint("Symmetric", 14, 2, 44, 2, -1, 1))
sketch10.addConstraint(Sketcher.Constraint("Symmetric", 12, 2, 46, 2, -1, 1))
sketch10.addConstraint(Sketcher.Constraint("Symmetric", 6, 2, 48, 2, -1, 1))
sketch10.addConstraint(Sketcher.Constraint("Symmetric", 4, 2, 50, 2, -1, 1))
sketch10.addConstraint(Sketcher.Constraint("Symmetric", 2, 2, 52, 2, -1, 1))
sketch10.addConstraint(Sketcher.Constraint("Symmetric", 0, 2, 54, 2, -1, 1))
sketch10.addConstraint(Sketcher.Constraint("Symmetric", 10, 2, 56, 2, -1, 1))
sketch10.addConstraint(Sketcher.Constraint("Symmetric", 8, 2, 58, 2, -1, 1))
sketch10.addConstraint(Sketcher.Constraint("Symmetric", 30, 2, 60, 2, -1, 1))
sketch10.addConstraint(Sketcher.Constraint("Symmetric", 28, 2, 62, 2, -1, 1))
sketch10.addConstraint(Sketcher.Constraint("Symmetric", 13, 2, 16, 2, -2))
sketch10.addConstraint(Sketcher.Constraint("Symmetric", 15, 2, 18, 2, -2))
sketch10.addConstraint(Sketcher.Constraint("Symmetric", 5, 2, 20, 2, -2))
sketch10.addConstraint(Sketcher.Constraint("Symmetric", 7, 2, 22, 2, -2))
sketch10.addConstraint(Sketcher.Constraint("Symmetric", 1, 2, 24, 2, -2))
sketch10.addConstraint(Sketcher.Constraint("Symmetric", 3, 2, 26, 2, -2))
sketch10.addConstraint(Sketcher.Constraint("Symmetric", 9, 2, 28, 2, -2))
sketch10.addConstraint(Sketcher.Constraint("Symmetric", 11, 2, 30, 2, -2))
sketch10.addConstraint(Sketcher.Constraint("Horizontal", 1, 2, 4, 2))
sketch10.addConstraint(Sketcher.Constraint("Horizontal", 3, 2, 6, 2))
sketch10.addConstraint(Sketcher.Constraint("Horizontal", 5, 2, 8, 2))
sketch10.addConstraint(Sketcher.Constraint("Horizontal", 7, 2, 10, 2))
sketch10.addConstraint(Sketcher.Constraint("Horizontal", 9, 2, 12, 2))
sketch10.addConstraint(Sketcher.Constraint("Horizontal", 11, 2, 14, 2))
sketch10.addConstraint(Sketcher.Constraint("Vertical", 59, 2, 64, 2))
sketch10.addConstraint(Sketcher.Constraint("Vertical", 58, 2, 65, 2))
sketch10.addConstraint(Sketcher.Constraint("Vertical", 67, 2, 68, 2))
sketch10.addConstraint(Sketcher.Constraint("Vertical", 66, 2, 69, 2))
sketch10.addConstraint(Sketcher.Constraint("Equal", 3, 5))
sketch10.addConstraint(Sketcher.Constraint("Equal", 7, 9))
sketch10.addConstraint(Sketcher.Constraint("Equal", 11, 13))
sketch10.addConstraint(Sketcher.Constraint("Equal", 71, 0))
sketch10.addConstraint(Sketcher.Constraint("Equal", 62, 64))
sketch10.addConstraint(Sketcher.Constraint("Equal", 66, 68))
sketch10.addConstraint(Sketcher.Constraint("DistanceX", 1, 1, 1, 2, Q("0.64 mm")))
sketch10.addConstraint(Sketcher.Constraint("DistanceX", 0, 2, -1, 1, Q("6.67 mm")))
sketch10.addConstraint(Sketcher.Constraint("DistanceY", 0, 2, -1, 1, Q("6.03 mm")))
sketch10.addConstraint(Sketcher.Constraint("DistanceX", 4, 2, -1, 1, Q("4.13 mm")))
sketch10.addConstraint(Sketcher.Constraint("DistanceX", 8, 2, -1, 1, Q("9.21 mm")))
sketch10.addConstraint(Sketcher.Constraint("DistanceX", 12, 2, -1, 1, Q("1.59 mm")))
sketch10.addConstraint(Sketcher.Constraint("DistanceY", 64, 2, -1, 1, Q("3.49 mm")))
sketch10.addConstraint(Sketcher.Constraint("DistanceY", 68, 2, -1, 1, Q("0.95 mm")))
pad9 = body6.newObject("PartDesign::Pad", "Pad008")
pad9.Profile = sketch10
pad9.Length = 2.9

doc.recompute()
